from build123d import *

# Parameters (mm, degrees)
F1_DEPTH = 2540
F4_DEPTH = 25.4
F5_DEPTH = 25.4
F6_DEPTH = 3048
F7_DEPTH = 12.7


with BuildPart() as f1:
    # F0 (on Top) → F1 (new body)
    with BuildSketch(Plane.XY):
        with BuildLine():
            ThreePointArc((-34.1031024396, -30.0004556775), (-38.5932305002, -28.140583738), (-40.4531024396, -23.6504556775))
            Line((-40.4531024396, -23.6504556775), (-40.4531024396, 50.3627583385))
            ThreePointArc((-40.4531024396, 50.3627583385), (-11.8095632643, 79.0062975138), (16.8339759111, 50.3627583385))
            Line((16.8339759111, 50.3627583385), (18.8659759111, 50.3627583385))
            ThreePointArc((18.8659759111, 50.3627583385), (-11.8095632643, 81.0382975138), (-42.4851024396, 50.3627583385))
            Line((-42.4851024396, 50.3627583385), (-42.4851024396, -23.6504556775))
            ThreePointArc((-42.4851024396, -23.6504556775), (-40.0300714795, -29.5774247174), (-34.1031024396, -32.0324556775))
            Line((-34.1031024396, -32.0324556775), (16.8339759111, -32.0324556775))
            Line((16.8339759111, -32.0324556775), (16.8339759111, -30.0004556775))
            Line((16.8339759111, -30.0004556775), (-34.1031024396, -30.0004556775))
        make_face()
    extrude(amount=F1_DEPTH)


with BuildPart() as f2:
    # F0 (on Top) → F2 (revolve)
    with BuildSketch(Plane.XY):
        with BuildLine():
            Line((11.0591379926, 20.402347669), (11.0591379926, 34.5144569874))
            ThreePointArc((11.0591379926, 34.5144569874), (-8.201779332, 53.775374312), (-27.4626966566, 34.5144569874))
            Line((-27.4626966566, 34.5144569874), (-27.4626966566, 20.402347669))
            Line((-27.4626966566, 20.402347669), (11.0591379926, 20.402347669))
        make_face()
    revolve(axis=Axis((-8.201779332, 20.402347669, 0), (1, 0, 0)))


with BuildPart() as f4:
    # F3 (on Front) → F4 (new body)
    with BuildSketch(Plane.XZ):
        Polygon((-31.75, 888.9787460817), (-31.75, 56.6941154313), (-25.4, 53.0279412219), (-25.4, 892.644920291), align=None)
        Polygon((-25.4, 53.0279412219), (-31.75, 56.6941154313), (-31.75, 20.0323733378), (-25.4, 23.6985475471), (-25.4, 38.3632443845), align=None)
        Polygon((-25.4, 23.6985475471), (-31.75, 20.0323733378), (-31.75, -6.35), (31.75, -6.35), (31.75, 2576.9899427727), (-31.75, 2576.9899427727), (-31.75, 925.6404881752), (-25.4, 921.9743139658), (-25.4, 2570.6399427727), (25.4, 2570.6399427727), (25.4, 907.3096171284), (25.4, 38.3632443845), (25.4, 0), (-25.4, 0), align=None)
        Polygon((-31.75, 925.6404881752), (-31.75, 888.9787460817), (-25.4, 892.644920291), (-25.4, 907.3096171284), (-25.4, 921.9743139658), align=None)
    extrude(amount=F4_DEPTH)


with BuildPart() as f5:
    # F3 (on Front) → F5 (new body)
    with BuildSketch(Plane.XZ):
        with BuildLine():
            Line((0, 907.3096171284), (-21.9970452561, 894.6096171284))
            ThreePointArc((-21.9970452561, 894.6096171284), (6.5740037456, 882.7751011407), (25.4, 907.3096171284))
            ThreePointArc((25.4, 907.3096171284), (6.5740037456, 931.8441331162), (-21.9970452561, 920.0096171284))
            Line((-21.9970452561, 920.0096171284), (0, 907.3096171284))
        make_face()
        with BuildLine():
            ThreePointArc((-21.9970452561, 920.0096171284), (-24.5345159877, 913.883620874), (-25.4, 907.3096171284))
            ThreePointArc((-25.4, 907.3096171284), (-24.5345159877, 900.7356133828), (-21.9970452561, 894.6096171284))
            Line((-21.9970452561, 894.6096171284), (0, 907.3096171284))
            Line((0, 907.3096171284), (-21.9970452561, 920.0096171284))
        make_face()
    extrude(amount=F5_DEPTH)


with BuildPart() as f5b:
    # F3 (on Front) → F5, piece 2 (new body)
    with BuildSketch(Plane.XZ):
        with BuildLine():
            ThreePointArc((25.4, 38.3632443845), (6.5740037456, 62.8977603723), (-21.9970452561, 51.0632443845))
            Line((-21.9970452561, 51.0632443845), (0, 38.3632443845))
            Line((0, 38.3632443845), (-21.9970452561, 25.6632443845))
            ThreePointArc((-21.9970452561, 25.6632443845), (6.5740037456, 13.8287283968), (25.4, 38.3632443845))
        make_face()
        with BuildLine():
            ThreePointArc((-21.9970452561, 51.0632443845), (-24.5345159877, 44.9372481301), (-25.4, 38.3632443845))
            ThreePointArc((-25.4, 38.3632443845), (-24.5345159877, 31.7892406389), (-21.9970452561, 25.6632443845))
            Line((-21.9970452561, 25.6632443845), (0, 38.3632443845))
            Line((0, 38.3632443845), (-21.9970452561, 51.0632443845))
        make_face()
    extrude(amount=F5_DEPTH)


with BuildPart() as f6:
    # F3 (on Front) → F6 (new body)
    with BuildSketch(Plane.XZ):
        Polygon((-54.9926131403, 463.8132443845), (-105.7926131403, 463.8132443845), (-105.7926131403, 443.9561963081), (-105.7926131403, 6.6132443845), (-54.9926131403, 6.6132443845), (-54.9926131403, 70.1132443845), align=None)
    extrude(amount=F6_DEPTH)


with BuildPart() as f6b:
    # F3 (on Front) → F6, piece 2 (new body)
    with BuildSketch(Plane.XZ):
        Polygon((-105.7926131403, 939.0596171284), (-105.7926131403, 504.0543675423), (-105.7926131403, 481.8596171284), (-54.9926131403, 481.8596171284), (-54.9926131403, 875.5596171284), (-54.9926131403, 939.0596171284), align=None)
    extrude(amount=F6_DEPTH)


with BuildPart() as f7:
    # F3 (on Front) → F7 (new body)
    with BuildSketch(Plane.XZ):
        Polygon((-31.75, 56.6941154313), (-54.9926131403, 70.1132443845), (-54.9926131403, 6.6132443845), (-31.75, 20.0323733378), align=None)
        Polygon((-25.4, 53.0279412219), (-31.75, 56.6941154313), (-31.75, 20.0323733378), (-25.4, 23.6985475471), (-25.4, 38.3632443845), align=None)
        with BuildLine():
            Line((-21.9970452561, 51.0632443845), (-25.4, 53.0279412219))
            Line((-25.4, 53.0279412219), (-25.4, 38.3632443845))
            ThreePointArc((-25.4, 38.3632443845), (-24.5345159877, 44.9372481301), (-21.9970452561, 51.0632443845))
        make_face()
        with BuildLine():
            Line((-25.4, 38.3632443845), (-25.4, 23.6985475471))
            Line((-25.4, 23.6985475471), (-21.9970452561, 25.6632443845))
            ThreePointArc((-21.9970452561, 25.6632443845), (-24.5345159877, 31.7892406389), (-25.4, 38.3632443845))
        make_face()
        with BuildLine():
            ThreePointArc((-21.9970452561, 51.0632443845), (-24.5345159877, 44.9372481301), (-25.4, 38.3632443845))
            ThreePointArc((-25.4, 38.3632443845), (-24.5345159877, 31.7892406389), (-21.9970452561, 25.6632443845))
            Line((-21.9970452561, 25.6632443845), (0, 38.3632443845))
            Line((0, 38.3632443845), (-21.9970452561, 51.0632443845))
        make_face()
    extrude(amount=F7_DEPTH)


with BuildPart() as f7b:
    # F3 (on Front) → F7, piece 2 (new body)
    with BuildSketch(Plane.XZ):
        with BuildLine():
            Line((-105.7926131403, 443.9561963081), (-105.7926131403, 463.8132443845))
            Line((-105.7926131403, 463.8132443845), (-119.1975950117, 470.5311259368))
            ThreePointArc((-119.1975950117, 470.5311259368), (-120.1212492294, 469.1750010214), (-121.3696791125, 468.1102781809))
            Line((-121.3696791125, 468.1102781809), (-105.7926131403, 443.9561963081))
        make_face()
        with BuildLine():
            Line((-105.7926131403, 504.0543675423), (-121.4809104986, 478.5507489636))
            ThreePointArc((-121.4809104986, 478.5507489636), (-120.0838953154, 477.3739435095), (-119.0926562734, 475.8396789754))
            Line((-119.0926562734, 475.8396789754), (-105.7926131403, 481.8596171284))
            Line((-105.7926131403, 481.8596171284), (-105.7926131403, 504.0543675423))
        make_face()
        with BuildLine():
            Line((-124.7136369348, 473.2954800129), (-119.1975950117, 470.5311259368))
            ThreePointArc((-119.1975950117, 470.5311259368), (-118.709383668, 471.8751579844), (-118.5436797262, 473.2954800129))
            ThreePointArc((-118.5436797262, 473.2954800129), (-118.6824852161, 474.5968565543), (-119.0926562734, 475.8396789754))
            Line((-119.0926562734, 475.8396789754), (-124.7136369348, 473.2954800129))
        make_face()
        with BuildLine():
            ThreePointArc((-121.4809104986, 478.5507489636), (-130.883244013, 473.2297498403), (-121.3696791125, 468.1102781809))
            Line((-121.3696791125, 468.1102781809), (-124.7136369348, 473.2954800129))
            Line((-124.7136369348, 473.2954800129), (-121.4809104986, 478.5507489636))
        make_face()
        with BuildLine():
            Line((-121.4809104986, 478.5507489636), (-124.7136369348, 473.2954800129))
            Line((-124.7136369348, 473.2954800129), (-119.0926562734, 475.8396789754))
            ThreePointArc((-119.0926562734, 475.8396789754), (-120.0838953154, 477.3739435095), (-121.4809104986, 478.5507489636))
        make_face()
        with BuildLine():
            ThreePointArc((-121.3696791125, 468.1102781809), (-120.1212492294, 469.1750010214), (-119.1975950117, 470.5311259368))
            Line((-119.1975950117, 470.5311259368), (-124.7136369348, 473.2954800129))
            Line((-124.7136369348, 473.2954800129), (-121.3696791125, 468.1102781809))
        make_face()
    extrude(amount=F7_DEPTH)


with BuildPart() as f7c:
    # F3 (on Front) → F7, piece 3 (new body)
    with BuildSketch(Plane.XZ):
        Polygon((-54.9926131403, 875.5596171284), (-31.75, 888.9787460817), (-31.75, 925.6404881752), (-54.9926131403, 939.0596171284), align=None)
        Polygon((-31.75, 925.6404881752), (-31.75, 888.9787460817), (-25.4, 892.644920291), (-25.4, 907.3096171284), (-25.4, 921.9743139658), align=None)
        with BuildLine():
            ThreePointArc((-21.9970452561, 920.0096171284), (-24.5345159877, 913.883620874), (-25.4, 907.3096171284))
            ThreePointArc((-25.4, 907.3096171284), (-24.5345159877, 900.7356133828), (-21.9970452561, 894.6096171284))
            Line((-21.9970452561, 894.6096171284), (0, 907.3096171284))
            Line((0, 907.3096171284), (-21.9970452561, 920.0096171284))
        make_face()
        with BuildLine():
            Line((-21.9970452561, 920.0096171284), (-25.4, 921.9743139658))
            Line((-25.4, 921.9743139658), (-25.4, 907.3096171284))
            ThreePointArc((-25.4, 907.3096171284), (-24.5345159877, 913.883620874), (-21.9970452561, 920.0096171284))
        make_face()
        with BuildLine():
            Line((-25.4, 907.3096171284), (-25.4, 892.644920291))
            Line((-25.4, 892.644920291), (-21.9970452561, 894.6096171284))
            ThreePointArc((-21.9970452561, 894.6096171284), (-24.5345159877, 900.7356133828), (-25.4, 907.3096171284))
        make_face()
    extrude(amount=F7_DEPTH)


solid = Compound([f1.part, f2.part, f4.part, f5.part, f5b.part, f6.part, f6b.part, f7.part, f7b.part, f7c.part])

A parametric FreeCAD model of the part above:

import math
import FreeCAD as App
import Part
import Sketcher
Q = App.Units.Quantity


def add_polygon(sketch, points):
    """Adds a closed chain of lines whose ends are joined by coincident constraints."""
    first, n = sketch.GeometryCount, len(points)
    for a, b in zip(points, points[1:] + points[:1]):
        sketch.addGeometry(Part.LineSegment(App.Vector(*a, 0), App.Vector(*b, 0)), False)
    for i in range(n):
        sketch.addConstraint(Sketcher.Constraint("Coincident", first + i, 2, first + (i + 1) % n, 1))

doc = App.newDocument("Part")
body = doc.addObject("PartDesign::Body", "Body")

sketch1 = body.newObject("Sketcher::SketchObject", "Sketch")
sketch1.AttachmentSupport = (doc.getObject("XY_Plane"), [""])
sketch1.MapMode = "FlatFace"
sketch1.addGeometry([
    Part.ArcOfCircle(Part.Circle(App.Vector(-34.103102, -23.650456, 0), App.Vector(0, 0, 1), 6.35), math.radians(180), math.radians(270)),
    Part.LineSegment(App.Vector(-40.453102, -23.650456, 0), App.Vector(-40.453102, 50.362758, 0)),
    Part.ArcOfCircle(Part.Circle(App.Vector(-11.809563, 50.362758, 0), App.Vector(0, 0, 1), 28.643539), math.radians(0), math.radians(180)),
    Part.LineSegment(App.Vector(16.833976, 50.362758, 0), App.Vector(18.865976, 50.362758, 0)),
    Part.ArcOfCircle(Part.Circle(App.Vector(-11.809563, 50.362758, 0), App.Vector(0, 0, 1), 30.675539), math.radians(0), math.radians(180)),
    Part.LineSegment(App.Vector(-42.485102, 50.362758, 0), App.Vector(-42.485102, -23.650456, 0)),
    Part.ArcOfCircle(Part.Circle(App.Vector(-34.103102, -23.650456, 0), App.Vector(0, 0, 1), 8.382), math.radians(180), math.radians(270)),
    Part.LineSegment(App.Vector(-34.103102, -32.032456, 0), App.Vector(16.833976, -32.032456, 0)),
    Part.LineSegment(App.Vector(16.833976, -32.032456, 0), App.Vector(16.833976, -30.000456, 0)),
    Part.LineSegment(App.Vector(16.833976, -30.000456, 0), App.Vector(-34.103102, -30.000456, 0)),
], False)
sketch1.addConstraint([
    Sketcher.Constraint("Tangent", 0, 1, 1, 1),
    Sketcher.Constraint("Tangent", 1, 2, 2, 2),
    Sketcher.Constraint("Coincident", 2, 1, 3, 1),
    Sketcher.Constraint("Coincident", 3, 2, 4, 1),
    Sketcher.Constraint("Tangent", 4, 2, 5, 1),
    Sketcher.Constraint("Tangent", 5, 2, 6, 1),
    Sketcher.Constraint("Tangent", 6, 2, 7, 1),
    Sketcher.Constraint("Coincident", 7, 2, 8, 1),
    Sketcher.Constraint("Coincident", 8, 2, 9, 1),
    Sketcher.Constraint("Tangent", 9, 2, 0, 2),
    Sketcher.Constraint("Vertical", 1),
    Sketcher.Constraint("Horizontal", 3),
    Sketcher.Constraint("Vertical", 5),
    Sketcher.Constraint("Horizontal", 7),
    Sketcher.Constraint("Vertical", 8),
    Sketcher.Constraint("Horizontal", 9),
    Sketcher.Constraint("Coincident", 4, 3, 2, 3),
    Sketcher.Constraint("Coincident", 6, 3, 0, 3),
    Sketcher.Constraint("Horizontal", 1, 2, 2, 1),
    Sketcher.Constraint("Vertical", 2, 1, 7, 2),
    Sketcher.Constraint("Radius", 0, Q("0.25 in")),
    Sketcher.Constraint("Radius", 6, Q("0.33 in")),
    Sketcher.Constraint("Radius", 2, 28.643539),
    Sketcher.Constraint("DistanceY", 1, 1, 1, 2, 74.013214),
    Sketcher.Constraint("DistanceY", -1, 1, 2, 3, 50.362758),
    Sketcher.Constraint("DistanceX", 0, 3, -1, 1, 34.103102),
])
pad1 = body.newObject("PartDesign::Pad", "Pad")
pad1.Profile = sketch1
pad1.Length = Q("100 in")
body2 = doc.addObject("PartDesign::Body", "Body001")

sketch2 = body2.newObject("Sketcher::SketchObject", "Sketch001")
sketch2.AttachmentSupport = (doc.getObject("XY_Plane001"), [""])
sketch2.MapMode = "FlatFace"
sketch2.addGeometry([
    Part.LineSegment(App.Vector(11.059138, 20.402348, 0), App.Vector(11.059138, 34.514457, 0)),
    Part.ArcOfCircle(Part.Circle(App.Vector(-8.201779, 34.514457, 0), App.Vector(0, 0, 1), 19.260917), math.radians(0), math.radians(180)),
    Part.LineSegment(App.Vector(-27.462697, 34.514457, 0), App.Vector(-27.462697, 20.402348, 0)),
    Part.LineSegment(App.Vector(-27.462697, 20.402348, 0), App.Vector(11.059138, 20.402348, 0)),
], False)
sketch2.addGeometry(Part.LineSegment(App.Vector(-27.462697, 20.402348, 0), App.Vector(11.059138, 20.402348, 0)), True)
sketch2.addConstraint([
    Sketcher.Constraint("Tangent", 0, 2, 1, 1),
    Sketcher.Constraint("Tangent", 1, 2, 2, 1),
    Sketcher.Constraint("Coincident", 2, 2, 3, 1),
    Sketcher.Constraint("Coincident", 3, 2, 0, 1),
    Sketcher.Constraint("Vertical", 0),
    Sketcher.Constraint("Vertical", 2),
    Sketcher.Constraint("Horizontal", 3),
    Sketcher.Constraint("Horizontal", 4),
    Sketcher.Constraint("Coincident", 4, 1, 2, 2),
    Sketcher.Constraint("Vertical", 0, 2, 4, 2),
    Sketcher.Constraint("Radius", 1, 19.260917),
    Sketcher.Constraint("DistanceY", 0, 1, 0, 2, 14.112109),
    Sketcher.Constraint("DistanceX", 1, 3, -1, 1, 8.201779),
    Sketcher.Constraint("DistanceY", -1, 1, 1, 3, 34.514457),
])
revolution = body2.newObject("PartDesign::Revolution", "Revolution")
revolution.Profile = sketch2
revolution.ReferenceAxis = (sketch2, ["Axis0"])
revolution.Angle = 360
body3 = doc.addObject("PartDesign::Body", "Body002")

sketch3 = body3.newObject("Sketcher::SketchObject", "Sketch002")
sketch3.AttachmentSupport = (doc.getObject("XZ_Plane002"), [""])
sketch3.MapMode = "FlatFace"
add_polygon(sketch3, [(-31.75, -6.35), (31.75, -6.35), (31.75, 2576.989943), (-31.75, 2576.989943)])
add_polygon(sketch3, [(-25.4, 2570.639943), (25.4, 2570.639943), (25.4, 0), (-25.4, 0)])
sketch3.addConstraint([
    Sketcher.Constraint("Horizontal", 0),
    Sketcher.Constraint("Vertical", 1),
    Sketcher.Constraint("Horizontal", 2),
    Sketcher.Constraint("Vertical", 3),
    Sketcher.Constraint("Horizontal", 4),
    Sketcher.Constraint("Vertical", 5),
    Sketcher.Constraint("Horizontal", 6),
    Sketcher.Constraint("Vertical", 7),
    Sketcher.Constraint("Symmetric", 5, 2, 6, 2, -1, 1),
    Sketcher.Constraint("DistanceX", 4, 1, 4, 2, Q("2 in")),
    Sketcher.Constraint("DistanceX", 0, 1, 0, 2, Q("2.5 in")),
    Sketcher.Constraint("DistanceX", -1, 1, 0, 2, Q("1.25 in")),
    Sketcher.Constraint("DistanceY", 0, 2, -1, 1, Q("0.25 in")),
    Sketcher.Constraint("DistanceY", 4, 2, 1, 2, Q("0.25 in")),
    Sketcher.Constraint("DistanceY", 1, 1, 1, 2, 2583.339943),
])
pad2 = body3.newObject("PartDesign::Pad", "Pad001")
pad2.Profile = sketch3
pad2.Length = Q("1 in")
body4 = doc.addObject("PartDesign::Body", "Body003")

sketch4 = body4.newObject("Sketcher::SketchObject", "Sketch003")
sketch4.AttachmentSupport = (doc.getObject("XZ_Plane003"), [""])
sketch4.MapMode = "FlatFace"
sketch4.addGeometry([
    Part.ArcOfCircle(Part.Circle(App.Vector(0, 907.309617, 0), App.Vector(0, 0, 1), 25.4), math.radians(-150), math.radians(0)),
    Part.ArcOfCircle(Part.Circle(App.Vector(0, 907.309617, 0), App.Vector(0, 0, 1), 25.4), math.radians(0), math.radians(150)),
    Part.ArcOfCircle(Part.Circle(App.Vector(0, 907.309617, 0), App.Vector(0, 0, 1), 25.4), math.radians(150), math.radians(180)),
    Part.ArcOfCircle(Part.Circle(App.Vector(0, 907.309617, 0), App.Vector(0, 0, 1), 25.4), math.radians(-180), math.radians(-150)),
], False)
sketch4.addConstraint([
    Sketcher.Constraint("Tangent", 0, 2, 1, 1),
    Sketcher.Constraint("Tangent", 1, 2, 2, 1),
    Sketcher.Constraint("Tangent", 2, 2, 3, 1),
    Sketcher.Constraint("Tangent", 3, 2, 0, 1),
    Sketcher.Constraint("Equal", 0, 1),
    Sketcher.Constraint("Symmetric", 0, 2, 2, 2, -2),
    Sketcher.Constraint("Horizontal", 3, 3, 0, 2),
    Sketcher.Constraint("Vertical", 1, 2, 3, 2),
    Sketcher.Constraint("Radius", 0, Q("1 in")),
    Sketcher.Constraint("DistanceY", 3, 2, 1, 2, Q("1 in")),
    Sketcher.Constraint("DistanceY", -1, 1, 0, 3, 907.309617),
])
pad3 = body4.newObject("PartDesign::Pad", "Pad002")
pad3.Profile = sketch4
pad3.Length = Q("1 in")
body5 = doc.addObject("PartDesign::Body", "Body004")

sketch5 = body5.newObject("Sketcher::SketchObject", "Sketch004")
sketch5.AttachmentSupport = (doc.getObject("XZ_Plane004"), [""])
sketch5.MapMode = "FlatFace"
sketch5.addGeometry([
    Part.ArcOfCircle(Part.Circle(App.Vector(0, 38.363244, 0), App.Vector(0, 0, 1), 25.4), math.radians(0), math.radians(150)),
    Part.ArcOfCircle(Part.Circle(App.Vector(0, 38.363244, 0), App.Vector(0, 0, 1), 25.4), math.radians(150), math.radians(180)),
    Part.ArcOfCircle(Part.Circle(App.Vector(0, 38.363244, 0), App.Vector(0, 0, 1), 25.4), math.radians(-180), math.radians(-150)),
    Part.ArcOfCircle(Part.Circle(App.Vector(0, 38.363244, 0), App.Vector(0, 0, 1), 25.4), math.radians(-150), math.radians(0)),
], False)
sketch5.addConstraint([
    Sketcher.Constraint("Tangent", 0, 2, 1, 1),
    Sketcher.Constraint("Tangent", 1, 2, 2, 1),
    Sketcher.Constraint("Tangent", 2, 2, 3, 1),
    Sketcher.Constraint("Tangent", 3, 2, 0, 1),
    Sketcher.Constraint("Equal", 0, 1),
    Sketcher.Constraint("Symmetric", 1, 2, 3, 2, -2),
    Sketcher.Constraint("Horizontal", 3, 3, 1, 2),
    Sketcher.Constraint("Vertical", 0, 2, 2, 2),
    Sketcher.Constraint("Radius", 0, Q("1 in")),
    Sketcher.Constraint("DistanceY", 2, 2, 0, 2, Q("1 in")),
    Sketcher.Constraint("DistanceY", -1, 1, 0, 3, 38.363244),
])
pad4 = body5.newObject("PartDesign::Pad", "Pad003")
pad4.Profile = sketch5
pad4.Length = Q("1 in")
body6 = doc.addObject("PartDesign::Body", "Body005")

sketch6 = body6.newObject("Sketcher::SketchObject", "Sketch005")
sketch6.AttachmentSupport = (doc.getObject("XZ_Plane005"), [""])
sketch6.MapMode = "FlatFace"
add_polygon(sketch6, [(-54.992613, 463.813244), (-105.792613, 463.813244), (-105.792613, 6.613244), (-54.992613, 6.613244)])
sketch6.addConstraint([
    Sketcher.Constraint("Horizontal", 0),
    Sketcher.Constraint("Vertical", 1),
    Sketcher.Constraint("Horizontal", 2),
    Sketcher.Constraint("Vertical", 3),
    Sketcher.Constraint("DistanceX", 0, 2, 0, 1, Q("2 in")),
    Sketcher.Constraint("DistanceY", 1, 2, 1, 1, Q("18 in")),
    Sketcher.Constraint("DistanceX", 0, 2, -1, 1, 105.792613),
    Sketcher.Constraint("DistanceY", -1, 1, 0, 2, 463.813244),
])
pad5 = body6.newObject("PartDesign::Pad", "Pad004")
pad5.Profile = sketch6
pad5.Length = Q("120 in")
body7 = doc.addObject("PartDesign::Body", "Body006")

sketch7 = body7.newObject("Sketcher::SketchObject", "Sketch006")
sketch7.AttachmentSupport = (doc.getObject("XZ_Plane006"), [""])
sketch7.MapMode = "FlatFace"
add_polygon(sketch7, [(-105.792613, 939.059617), (-105.792613, 481.859617), (-54.992613, 481.859617), (-54.992613, 939.059617)])
sketch7.addConstraint([
    Sketcher.Constraint("Vertical", 0),
    Sketcher.Constraint("Horizontal", 1),
    Sketcher.Constraint("Vertical", 2),
    Sketcher.Constraint("Horizontal", 3),
    Sketcher.Constraint("DistanceX", 1, 1, 1, 2, Q("2 in")),
    Sketcher.Constraint("DistanceY", 0, 2, 0, 1, Q("18 in")),
    Sketcher.Constraint("DistanceX", 0, 2, -1, 1, 105.792613),
    Sketcher.Constraint("DistanceY", -1, 1, 0, 2, 481.859617),
])
pad6 = body7.newObject("PartDesign::Pad", "Pad005")
pad6.Profile = sketch7
pad6.Length = Q("120 in")
body8 = doc.addObject("PartDesign::Body", "Body007")

sketch8 = body8.newObject("Sketcher::SketchObject", "Sketch007")
sketch8.AttachmentSupport = (doc.getObject("XZ_Plane007"), [""])
sketch8.MapMode = "FlatFace"
add_polygon(sketch8, [(-31.75, 56.694115), (-54.992613, 70.113244), (-54.992613, 6.613244), (-31.75, 20.032373), (-21.997045, 25.663244), (0, 38.363244), (-21.997045, 51.063244), (-25.4, 53.027941)])
sketch8.addConstraint([
    Sketcher.Constraint("Vertical", 1),
    Sketcher.Constraint("PointOnObject", 4, 2, -2),
    Sketcher.Constraint("Parallel", 2, 3),
    Sketcher.Constraint("Parallel", 3, 4),
    Sketcher.Constraint("Parallel", 0, 5),
    Sketcher.Constraint("Parallel", 5, 6),
    Sketcher.Constraint("Parallel", 6, 7),
    Sketcher.Constraint("Vertical", 3, 2, 5, 2),
    Sketcher.Constraint("Vertical", 2, 2, 7, 2),
    Sketcher.Constraint("Equal", 0, 2),
    Sketcher.Constraint("Distance", 4, Q("1 in")),
    Sketcher.Constraint("DistanceY", 1, 2, 1, 1, Q("2.5 in")),
    Sketcher.Constraint("DistanceX", 6, 2, -1, 1, Q("1 in")),
    Sketcher.Constraint("Angle", 0, Q("150 deg")),
    Sketcher.Constraint("DistanceX", 2, 2, -1, 1, Q("1.25 in")),
    Sketcher.Constraint("DistanceY", -1, 1, 6, 2, 53.027941),
])
pad7 = body8.newObject("PartDesign::Pad", "Pad006")
pad7.Profile = sketch8
pad7.Length = Q("0.5 in")
body9 = doc.addObject("PartDesign::Body", "Body008")

sketch9 = body9.newObject("Sketcher::SketchObject", "Sketch008")
sketch9.AttachmentSupport = (doc.getObject("XZ_Plane008"), [""])
sketch9.MapMode = "FlatFace"
sketch9.addGeometry([
    Part.LineSegment(App.Vector(-105.792613, 443.956196, 0), App.Vector(-105.792613, 463.813244, 0)),
    Part.LineSegment(App.Vector(-105.792613, 463.813244, 0), App.Vector(-119.197595, 470.531126, 0)),
    Part.ArcOfCircle(Part.Circle(App.Vector(-124.713637, 473.29548, 0), App.Vector(0, 0, 1), 6.169957), math.radians(-26.617653), math.radians(0)),
    Part.ArcOfCircle(Part.Circle(App.Vector(-124.713637, 473.29548, 0), App.Vector(0, 0, 1), 6.169957), math.radians(0), math.radians(24.352718)),
    Part.LineSegment(App.Vector(-119.092656, 475.839679, 0), App.Vector(-105.792613, 481.859617, 0)),
    Part.LineSegment(App.Vector(-105.792613, 481.859617, 0), App.Vector(-105.792613, 504.054368, 0)),
    Part.LineSegment(App.Vector(-105.792613, 504.054368, 0), App.Vector(-121.48091, 478.550749, 0)),
    Part.ArcOfCircle(Part.Circle(App.Vector(-124.713637, 473.29548, 0), App.Vector(0, 0, 1), 6.169957), math.radians(58.402662), math.radians(302.818135)),
    Part.LineSegment(App.Vector(-121.369679, 468.110278, 0), App.Vector(-105.792613, 443.956196, 0)),
], False)
sketch9.addConstraint([
    Sketcher.Constraint("Coincident", 0, 2, 1, 1),
    Sketcher.Constraint("Coincident", 1, 2, 2, 1),
    Sketcher.Constraint("Tangent", 2, 2, 3, 1),
    Sketcher.Constraint("Coincident", 3, 2, 4, 1),
    Sketcher.Constraint("Coincident", 4, 2, 5, 1),
    Sketcher.Constraint("Coincident", 5, 2, 6, 1),
    Sketcher.Constraint("Coincident", 6, 2, 7, 1),
    Sketcher.Constraint("Coincident", 7, 2, 8, 1),
    Sketcher.Constraint("Coincident", 8, 2, 0, 1),
    Sketcher.Constraint("Vertical", 0),
    Sketcher.Constraint("Vertical", 5),
    Sketcher.Constraint("Coincident", 7, 3, 2, 3),
    Sketcher.Constraint("Equal", 2, 3),
    Sketcher.Constraint("Equal", 3, 7),
    Sketcher.Constraint("Horizontal", 7, 3, 2, 2),
    Sketcher.Constraint("Vertical", 0, 2, 4, 2),
    Sketcher.Constraint("Radius", 2, 6.169957),
    Sketcher.Constraint("Distance", 4, 14.599),
    Sketcher.Constraint("DistanceY", 0, 1, 0, 2, 19.857048),
    Sketcher.Constraint("DistanceY", 5, 1, 5, 2, 22.19475),
    Sketcher.Constraint("DistanceY", 2, 2, 3, 2, 2.544199),
    Sketcher.Constraint("DistanceX", 7, 2, 2, 2, 2.825999),
    Sketcher.Constraint("Distance", 8, 28.741341),
    Sketcher.Constraint("DistanceY", -1, 1, 2, 3, 473.29548),
    Sketcher.Constraint("DistanceX", 2, 2, -1, 1, 118.54368),
    Sketcher.Constraint("DistanceX", 6, 2, -1, 1, 121.48091),
    Sketcher.Constraint("DistanceX", 2, 3, 1, 2, 5.516042),
    Sketcher.Constraint("DistanceX", 1, 2, 0, 2, 13.404982),
])
pad8 = body9.newObject("PartDesign::Pad", "Pad007")
pad8.Profile = sketch9
pad8.Length = Q("0.5 in")
body10 = doc.addObject("PartDesign::Body", "Body009")

sketch10 = body10.newObject("Sketcher::SketchObject", "Sketch009")
sketch10.AttachmentSupport = (doc.getObject("XZ_Plane009"), [""])
sketch10.MapMode = "FlatFace"
add_polygon(sketch10, [(-54.992613, 875.559617), (-31.75, 888.978746), (-21.997045, 894.609617), (0, 907.309617), (-21.997045, 920.009617), (-25.4, 921.974314), (-31.75, 925.640488), (-54.992613, 939.059617)])
sketch10.addConstraint([
    Sketcher.Constraint("Vertical", 7),
    Sketcher.Constraint("PointOnObject", 2, 2, -2),
    Sketcher.Constraint("Parallel", 0, 1),
    Sketcher.Constraint("Parallel", 1, 2),
    Sketcher.Constraint("Parallel", 3, 4),
    Sketcher.Constraint("Parallel", 4, 5),
    Sketcher.Constraint("Parallel", 5, 6),
    Sketcher.Constraint("Vertical", 1, 2, 3, 2),
    Sketcher.Constraint("Vertical", 0, 2, 5, 2),
    Sketcher.Constraint("Equal", 2, 3),
    Sketcher.Constraint("Distance", 2, Q("1 in")),
    Sketcher.Constraint("DistanceY", 7, 2, 7, 1, Q("2.5 in")),
    Sketcher.Constraint("DistanceX", 4, 2, -1, 1, Q("1 in")),
    Sketcher.Constraint("Angle", 0, Q("30 deg")),
    Sketcher.Constraint("DistanceX", 0, 2, -1, 1, Q("1.25 in")),
    Sketcher.Constraint("DistanceY", -1, 1, 5, 2, 925.640488),
])
pad9 = body10.newObject("PartDesign::Pad", "Pad008")
pad9.Profile = sketch10
pad9.Length = Q("0.5 in")

doc.recompute()
